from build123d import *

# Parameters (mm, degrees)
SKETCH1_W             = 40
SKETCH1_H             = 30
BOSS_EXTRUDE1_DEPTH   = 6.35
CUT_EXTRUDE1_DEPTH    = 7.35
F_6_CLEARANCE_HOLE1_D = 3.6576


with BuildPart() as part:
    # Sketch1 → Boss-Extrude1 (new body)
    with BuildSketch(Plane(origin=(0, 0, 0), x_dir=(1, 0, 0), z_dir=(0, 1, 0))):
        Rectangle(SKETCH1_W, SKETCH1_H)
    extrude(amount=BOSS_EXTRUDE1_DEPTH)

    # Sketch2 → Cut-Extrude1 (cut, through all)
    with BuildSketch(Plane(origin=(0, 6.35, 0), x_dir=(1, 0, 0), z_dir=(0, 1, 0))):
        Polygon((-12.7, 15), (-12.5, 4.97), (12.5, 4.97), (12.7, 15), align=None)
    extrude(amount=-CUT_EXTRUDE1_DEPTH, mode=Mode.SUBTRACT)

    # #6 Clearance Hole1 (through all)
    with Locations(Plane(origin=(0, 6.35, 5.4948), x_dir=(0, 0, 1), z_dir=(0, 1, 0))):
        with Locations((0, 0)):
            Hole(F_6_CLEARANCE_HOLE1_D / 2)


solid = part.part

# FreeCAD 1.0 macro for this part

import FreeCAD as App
import Part
import Sketcher
from FreeCAD import Vector

doc = App.newDocument("Part")
body = doc.addObject("PartDesign::Body", "Body")

# Sketch on XZ plane
sketch1 = body.newObject("Sketcher::SketchObject", "Sketch")
sketch1.AttachmentSupport = (doc.getObject("XZ_Plane"), [""])
sketch1.MapMode = "FlatFace"
sketch1.addGeometry([
    Part.LineSegment(Vector(-20, -15, 0), Vector(-20, 15, 0)),
    Part.LineSegment(Vector(-20, 15, 0), Vector(20, 15, 0)),
    Part.LineSegment(Vector(20, 15, 0), Vector(20, -15, 0)),
    Part.LineSegment(Vector(20, -15, 0), Vector(-20, -15, 0)),
], False)
sketch1.addConstraint([
    Sketcher.Constraint("Coincident", 0, 2, 1, 1),
    Sketcher.Constraint("Coincident", 1, 2, 2, 1),
    Sketcher.Constraint("Coincident", 2, 2, 3, 1),
    Sketcher.Constraint("Coincident", 3, 2, 0, 1),
    Sketcher.Constraint("Vertical", 0),
    Sketcher.Constraint("Horizontal", 1),
    Sketcher.Constraint("Vertical", 2),
    Sketcher.Constraint("Horizontal", 3),
    Sketcher.Constraint("Symmetric", 0, 2, 2, 2, -1, 1),
    Sketcher.Constraint("DistanceX", 1, 1, 1, 2, 40.0),
    Sketcher.Constraint("DistanceY", 0, 1, 0, 2, 30.0),
])
pad1 = body.newObject("PartDesign::Pad", "Pad")
pad1.Profile = sketch1
pad1.Length = 6.35
pad1.Reversed = True

# Sketch on XZ plane
sketch2 = body.newObject("Sketcher::SketchObject", "Sketch001")
sketch2.AttachmentSupport = (doc.getObject("XZ_Plane"), [""])
sketch2.MapMode = "FlatFace"
sketch2.AttachmentOffset = App.Placement(Vector(0, 0, -6.35), App.Rotation())
sketch2.addGeometry([
    Part.LineSegment(Vector(-12.7, -15, 0), Vector(-12.5, -4.97, 0)),
    Part.LineSegment(Vector(-12.5, -4.97, 0), Vector(12.5, -4.97, 0)),
    Part.LineSegment(Vector(12.5, -4.97, 0), Vector(12.7, -15, 0)),
    Part.LineSegment(Vector(12.7, -15, 0), Vector(-12.7, -15, 0)),
], False)
sketch2.addConstraint([
    Sketcher.Constraint("Coincident", 0, 2, 1, 1),
    Sketcher.Constraint("Coincident", 1, 2, 2, 1),
    Sketcher.Constraint("Coincident", 2, 2, 3, 1),
    Sketcher.Constraint("Coincident", 3, 2, 0, 1),
    Sketcher.Constraint("Horizontal", 1),
    Sketcher.Constraint("Horizontal", 3),
    Sketcher.Constraint("Equal", 0, 2),
    Sketcher.Constraint("DistanceX", 1, 1, 1, 2, 25.0),
    Sketcher.Constraint("DistanceX", 3, 2, 3, 1, 25.4),
    Sketcher.Constraint("DistanceY", 2, 2, -1, 1, 15.0),
    Sketcher.Constraint("DistanceX", 0, 2, -1, 1, 12.5),
    Sketcher.Constraint("DistanceY", 0, 2, -1, 1, 4.97),
])
pocket1 = body.newObject("PartDesign::Pocket", "Pocket")
pocket1.Profile = sketch2
pocket1.Type = "ThroughAll"
pocket1.Reversed = True

# Sketch on XZ plane
sketch3 = body.newObject("Sketcher::SketchObject", "Sketch002")
sketch3.AttachmentSupport = (doc.getObject("XZ_Plane"), [""])
sketch3.MapMode = "FlatFace"
sketch3.AttachmentOffset = App.Placement(Vector(0, 0, -6.35), App.Rotation())
sketch3.addGeometry(Part.Circle(Vector(0, 5.4948, 0), Vector(0, 0, 1), 1.8288), False)
sketch3.addConstraint([
    Sketcher.Constraint("PointOnObject", 0, 3, -2),
    Sketcher.Constraint("Diameter", 0, 3.6576),
    Sketcher.Constraint("DistanceY", -1, 1, 0, 3, 5.4948),
])
doc.recompute()
hole = body.newObject("PartDesign::Hole", "Hole")
hole.Profile = sketch3
hole.ThreadType = "None"
hole.Diameter = 3.6576
hole.DepthType = "ThroughAll"
hole.Reversed = True

doc.recompute()
